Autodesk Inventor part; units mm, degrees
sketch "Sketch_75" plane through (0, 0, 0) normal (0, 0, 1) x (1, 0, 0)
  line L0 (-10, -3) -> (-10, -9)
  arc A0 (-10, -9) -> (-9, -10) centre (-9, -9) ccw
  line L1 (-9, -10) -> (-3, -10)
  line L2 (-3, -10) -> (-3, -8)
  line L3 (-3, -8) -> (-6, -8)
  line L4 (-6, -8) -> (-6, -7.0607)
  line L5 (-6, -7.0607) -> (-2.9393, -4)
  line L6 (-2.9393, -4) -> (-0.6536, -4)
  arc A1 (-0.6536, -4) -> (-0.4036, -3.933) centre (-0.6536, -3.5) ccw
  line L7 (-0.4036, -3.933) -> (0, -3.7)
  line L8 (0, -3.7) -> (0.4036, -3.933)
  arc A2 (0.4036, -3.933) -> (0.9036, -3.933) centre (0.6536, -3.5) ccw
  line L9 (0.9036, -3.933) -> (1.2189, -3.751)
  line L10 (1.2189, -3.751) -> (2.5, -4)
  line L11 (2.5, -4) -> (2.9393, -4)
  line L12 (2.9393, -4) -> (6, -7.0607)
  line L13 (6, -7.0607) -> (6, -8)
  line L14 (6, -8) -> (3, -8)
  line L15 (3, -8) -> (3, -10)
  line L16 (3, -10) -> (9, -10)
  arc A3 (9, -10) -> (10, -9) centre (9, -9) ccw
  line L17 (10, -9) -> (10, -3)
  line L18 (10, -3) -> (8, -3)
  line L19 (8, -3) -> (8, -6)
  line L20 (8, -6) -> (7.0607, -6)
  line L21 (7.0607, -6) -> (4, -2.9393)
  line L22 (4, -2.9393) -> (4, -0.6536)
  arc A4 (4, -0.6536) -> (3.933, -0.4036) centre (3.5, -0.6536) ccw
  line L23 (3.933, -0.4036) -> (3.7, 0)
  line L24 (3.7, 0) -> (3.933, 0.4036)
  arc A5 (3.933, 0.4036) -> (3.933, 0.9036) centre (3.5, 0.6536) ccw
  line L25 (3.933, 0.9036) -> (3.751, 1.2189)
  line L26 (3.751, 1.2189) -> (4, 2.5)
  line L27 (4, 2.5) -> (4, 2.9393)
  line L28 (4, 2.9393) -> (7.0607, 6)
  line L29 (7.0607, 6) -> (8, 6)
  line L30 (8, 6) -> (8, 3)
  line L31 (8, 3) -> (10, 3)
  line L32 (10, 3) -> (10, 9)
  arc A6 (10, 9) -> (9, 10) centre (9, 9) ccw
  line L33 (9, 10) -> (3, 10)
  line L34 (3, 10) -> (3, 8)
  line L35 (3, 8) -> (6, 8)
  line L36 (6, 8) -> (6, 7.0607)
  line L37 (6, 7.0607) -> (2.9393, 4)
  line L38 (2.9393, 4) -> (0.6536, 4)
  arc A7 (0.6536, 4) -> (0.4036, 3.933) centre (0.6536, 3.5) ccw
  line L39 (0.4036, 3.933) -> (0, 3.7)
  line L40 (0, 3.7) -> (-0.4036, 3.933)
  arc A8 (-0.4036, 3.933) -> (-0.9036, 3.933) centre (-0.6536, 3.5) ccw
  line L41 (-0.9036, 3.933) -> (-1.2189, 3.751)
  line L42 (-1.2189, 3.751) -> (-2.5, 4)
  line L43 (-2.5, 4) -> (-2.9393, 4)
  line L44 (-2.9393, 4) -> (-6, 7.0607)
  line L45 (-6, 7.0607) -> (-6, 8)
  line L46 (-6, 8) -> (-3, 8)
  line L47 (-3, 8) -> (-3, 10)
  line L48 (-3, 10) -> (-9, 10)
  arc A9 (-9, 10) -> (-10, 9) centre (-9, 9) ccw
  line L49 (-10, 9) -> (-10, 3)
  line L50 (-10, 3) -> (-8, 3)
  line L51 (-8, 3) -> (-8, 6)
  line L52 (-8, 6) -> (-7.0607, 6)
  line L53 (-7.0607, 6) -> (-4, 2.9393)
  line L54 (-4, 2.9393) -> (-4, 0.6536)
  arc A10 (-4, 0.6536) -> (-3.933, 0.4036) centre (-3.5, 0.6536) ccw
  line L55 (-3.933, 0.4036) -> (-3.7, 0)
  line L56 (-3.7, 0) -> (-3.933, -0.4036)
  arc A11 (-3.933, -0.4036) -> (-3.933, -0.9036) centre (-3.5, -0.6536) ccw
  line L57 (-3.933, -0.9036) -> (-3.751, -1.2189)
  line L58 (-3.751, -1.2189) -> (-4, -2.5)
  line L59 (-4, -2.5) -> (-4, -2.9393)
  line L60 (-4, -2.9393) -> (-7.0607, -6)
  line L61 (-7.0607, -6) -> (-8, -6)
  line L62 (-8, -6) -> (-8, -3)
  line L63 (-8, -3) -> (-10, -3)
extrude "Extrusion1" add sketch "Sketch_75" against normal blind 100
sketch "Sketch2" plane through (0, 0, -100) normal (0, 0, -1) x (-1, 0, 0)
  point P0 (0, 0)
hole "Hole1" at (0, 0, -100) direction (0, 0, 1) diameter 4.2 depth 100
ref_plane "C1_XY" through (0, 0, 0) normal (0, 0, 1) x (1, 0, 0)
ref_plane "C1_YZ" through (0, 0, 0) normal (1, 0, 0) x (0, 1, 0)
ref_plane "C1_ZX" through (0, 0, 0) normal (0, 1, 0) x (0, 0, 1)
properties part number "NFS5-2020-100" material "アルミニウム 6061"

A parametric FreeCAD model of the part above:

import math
import FreeCAD as App
import Part
import Sketcher
from FreeCAD import Vector
Q = App.Units.Quantity

doc = App.newDocument("Part")
body = doc.addObject("PartDesign::Body", "Body")

# Sketch on XY plane
sketch1 = doc.addObject("Sketcher::SketchObject", "Sketch")
body.addObject(sketch1)
sketch1.AttachmentSupport = (doc.XY_Plane, [""])
sketch1.MapMode = "FlatFace"
sketch1.addGeometry([
    Part.LineSegment(Vector(-8, -3, 0), Vector(-10, -3, 0)),  # 0
    Part.LineSegment(Vector(-10, -3, 0), Vector(-10, -9, 0)),  # 1
    Part.ArcOfCircle(Part.Circle(Vector(-9, -9, 0), Vector(0, 0, 1), 1), math.radians(180), math.radians(270)),  # 2
    Part.LineSegment(Vector(-9, -10, 0), Vector(-3, -10, 0)),  # 3
    Part.LineSegment(Vector(-3, -10, 0), Vector(-3, -8, 0)),  # 4
    Part.LineSegment(Vector(-3, -8, 0), Vector(-6, -8, 0)),  # 5
    Part.LineSegment(Vector(-6, -8, 0), Vector(-6, -7.06, 0)),  # 6
    Part.LineSegment(Vector(-6, -7.06, 0), Vector(-2.94, -4, 0)),  # 7
    Part.LineSegment(Vector(-2.94, -4, 0), Vector(-0.65, -4, 0)),  # 8
    Part.ArcOfCircle(Part.Circle(Vector(-0.65, -3.5, 0), Vector(0, 0, 1), 0.5), math.radians(-90), math.radians(-60)),  # 9
    Part.LineSegment(Vector(-0.4, -3.93, 0), Vector(0, -3.7, 0)),  # 10
    Part.LineSegment(Vector(0, -3.7, 0), Vector(0.4, -3.93, 0)),  # 11
    Part.ArcOfCircle(Part.Circle(Vector(0.65, -3.5, 0), Vector(0, 0, 1), 0.5), math.radians(-120), math.radians(-60)),  # 12
    Part.LineSegment(Vector(0.9, -3.93, 0), Vector(1.22, -3.75, 0)),  # 13
    Part.LineSegment(Vector(1.22, -3.75, 0), Vector(2.5, -4, 0)),  # 14
    Part.LineSegment(Vector(2.5, -4, 0), Vector(2.94, -4, 0)),  # 15
    Part.LineSegment(Vector(2.94, -4, 0), Vector(6, -7.06, 0)),  # 16
    Part.LineSegment(Vector(6, -7.06, 0), Vector(6, -8, 0)),  # 17
    Part.LineSegment(Vector(6, -8, 0), Vector(3, -8, 0)),  # 18
    Part.LineSegment(Vector(3, -8, 0), Vector(3, -10, 0)),  # 19
    Part.LineSegment(Vector(3, -10, 0), Vector(9, -10, 0)),  # 20
    Part.ArcOfCircle(Part.Circle(Vector(9, -9, 0), Vector(0, 0, 1), 1), math.radians(-90), math.radians(0)),  # 21
    Part.LineSegment(Vector(10, -9, 0), Vector(10, -3, 0)),  # 22
    Part.LineSegment(Vector(10, -3, 0), Vector(8, -3, 0)),  # 23
    Part.LineSegment(Vector(8, -3, 0), Vector(8, -6, 0)),  # 24
    Part.LineSegment(Vector(8, -6, 0), Vector(7.06, -6, 0)),  # 25
    Part.LineSegment(Vector(7.06, -6, 0), Vector(4, -2.94, 0)),  # 26
    Part.LineSegment(Vector(4, -2.94, 0), Vector(4, -0.65, 0)),  # 27
    Part.ArcOfCircle(Part.Circle(Vector(3.5, -0.65, 0), Vector(0, 0, 1), 0.5), math.radians(0), math.radians(30)),  # 28
    Part.LineSegment(Vector(3.93, -0.4, 0), Vector(3.7, 0, 0)),  # 29
    Part.LineSegment(Vector(3.7, 0, 0), Vector(3.93, 0.4, 0)),  # 30
    Part.ArcOfCircle(Part.Circle(Vector(3.5, 0.65, 0), Vector(0, 0, 1), 0.5), math.radians(-30), math.radians(30)),  # 31
    Part.LineSegment(Vector(3.93, 0.9, 0), Vector(3.75, 1.22, 0)),  # 32
    Part.LineSegment(Vector(3.75, 1.22, 0), Vector(4, 2.5, 0)),  # 33
    Part.LineSegment(Vector(4, 2.5, 0), Vector(4, 2.94, 0)),  # 34
    Part.LineSegment(Vector(4, 2.94, 0), Vector(7.06, 6, 0)),  # 35
    Part.LineSegment(Vector(7.06, 6, 0), Vector(8, 6, 0)),  # 36
    Part.LineSegment(Vector(8, 6, 0), Vector(8, 3, 0)),  # 37
    Part.LineSegment(Vector(8, 3, 0), Vector(10, 3, 0)),  # 38
    Part.LineSegment(Vector(10, 3, 0), Vector(10, 9, 0)),  # 39
    Part.ArcOfCircle(Part.Circle(Vector(9, 9, 0), Vector(0, 0, 1), 1), math.radians(0), math.radians(90)),  # 40
    Part.LineSegment(Vector(9, 10, 0), Vector(3, 10, 0)),  # 41
    Part.LineSegment(Vector(3, 10, 0), Vector(3, 8, 0)),  # 42
    Part.LineSegment(Vector(3, 8, 0), Vector(6, 8, 0)),  # 43
    Part.LineSegment(Vector(6, 8, 0), Vector(6, 7.06, 0)),  # 44
    Part.LineSegment(Vector(6, 7.06, 0), Vector(2.94, 4, 0)),  # 45
    Part.LineSegment(Vector(2.94, 4, 0), Vector(0.65, 4, 0)),  # 46
    Part.ArcOfCircle(Part.Circle(Vector(0.65, 3.5, 0), Vector(0, 0, 1), 0.5), math.radians(90), math.radians(120)),  # 47
    Part.LineSegment(Vector(0.4, 3.93, 0), Vector(0, 3.7, 0)),  # 48
    Part.LineSegment(Vector(0, 3.7, 0), Vector(-0.4, 3.93, 0)),  # 49
    Part.ArcOfCircle(Part.Circle(Vector(-0.65, 3.5, 0), Vector(0, 0, 1), 0.5), math.radians(60), math.radians(120)),  # 50
    Part.LineSegment(Vector(-0.9, 3.93, 0), Vector(-1.22, 3.75, 0)),  # 51
    Part.LineSegment(Vector(-1.22, 3.75, 0), Vector(-2.5, 4, 0)),  # 52
    Part.LineSegment(Vector(-2.5, 4, 0), Vector(-2.94, 4, 0)),  # 53
    Part.LineSegment(Vector(-2.94, 4, 0), Vector(-6, 7.06, 0)),  # 54
    Part.LineSegment(Vector(-6, 7.06, 0), Vector(-6, 8, 0)),  # 55
    Part.LineSegment(Vector(-6, 8, 0), Vector(-3, 8, 0)),  # 56
    Part.LineSegment(Vector(-3, 8, 0), Vector(-3, 10, 0)),  # 57
    Part.LineSegment(Vector(-3, 10, 0), Vector(-9, 10, 0)),  # 58
    Part.ArcOfCircle(Part.Circle(Vector(-9, 9, 0), Vector(0, 0, 1), 1), math.radians(90), math.radians(180)),  # 59
    Part.LineSegment(Vector(-10, 9, 0), Vector(-10, 3, 0)),  # 60
    Part.LineSegment(Vector(-10, 3, 0), Vector(-8, 3, 0)),  # 61
    Part.LineSegment(Vector(-8, 3, 0), Vector(-8, 6, 0)),  # 62
    Part.LineSegment(Vector(-8, 6, 0), Vector(-7.06, 6, 0)),  # 63
    Part.LineSegment(Vector(-7.06, 6, 0), Vector(-4, 2.94, 0)),  # 64
    Part.LineSegment(Vector(-4, 2.94, 0), Vector(-4, 0.65, 0)),  # 65
    Part.ArcOfCircle(Part.Circle(Vector(-3.5, 0.65, 0), Vector(0, 0, 1), 0.5), math.radians(180), math.radians(210)),  # 66
    Part.LineSegment(Vector(-3.93, 0.4, 0), Vector(-3.7, 0, 0)),  # 67
    Part.LineSegment(Vector(-3.7, 0, 0), Vector(-3.93, -0.4, 0)),  # 68
    Part.ArcOfCircle(Part.Circle(Vector(-3.5, -0.65, 0), Vector(0, 0, 1), 0.5), math.radians(150), math.radians(210)),  # 69
    Part.LineSegment(Vector(-3.93, -0.9, 0), Vector(-3.75, -1.22, 0)),  # 70
    Part.LineSegment(Vector(-3.75, -1.22, 0), Vector(-4, -2.5, 0)),  # 71
    Part.LineSegment(Vector(-4, -2.5, 0), Vector(-4, -2.94, 0)),  # 72
    Part.LineSegment(Vector(-4, -2.94, 0), Vector(-7.06, -6, 0)),  # 73
    Part.LineSegment(Vector(-7.06, -6, 0), Vector(-8, -6, 0)),  # 74
    Part.LineSegment(Vector(-8, -6, 0), Vector(-8, -3, 0)),  # 75
], False)
sketch1.addConstraint([
    Sketcher.Constraint("Coincident", 0, 2, 1, 1),
    Sketcher.Constraint("Tangent", 1, 2, 2, 1),
    Sketcher.Constraint("Tangent", 2, 2, 3, 1),
    Sketcher.Constraint("Coincident", 3, 2, 4, 1),
    Sketcher.Constraint("Coincident", 4, 2, 5, 1),
    Sketcher.Constraint("Coincident", 5, 2, 6, 1),
    Sketcher.Constraint("Coincident", 6, 2, 7, 1),
    Sketcher.Constraint("Coincident", 7, 2, 8, 1),
    Sketcher.Constraint("Tangent", 8, 2, 9, 1),
    Sketcher.Constraint("Tangent", 9, 2, 10, 1),
    Sketcher.Constraint("Coincident", 10, 2, 11, 1),
    Sketcher.Constraint("Tangent", 11, 2, 12, 1),
    Sketcher.Constraint("Tangent", 12, 2, 13, 1),
    Sketcher.Constraint("Coincident", 13, 2, 14, 1),
    Sketcher.Constraint("Coincident", 14, 2, 15, 1),
    Sketcher.Constraint("Coincident", 15, 2, 16, 1),
    Sketcher.Constraint("Coincident", 16, 2, 17, 1),
    Sketcher.Constraint("Coincident", 17, 2, 18, 1),
    Sketcher.Constraint("Coincident", 18, 2, 19, 1),
    Sketcher.Constraint("Coincident", 19, 2, 20, 1),
    Sketcher.Constraint("Tangent", 20, 2, 21, 1),
    Sketcher.Constraint("Tangent", 21, 2, 22, 1),
    Sketcher.Constraint("Coincident", 22, 2, 23, 1),
    Sketcher.Constraint("Coincident", 23, 2, 24, 1),
    Sketcher.Constraint("Coincident", 24, 2, 25, 1),
    Sketcher.Constraint("Coincident", 25, 2, 26, 1),
    Sketcher.Constraint("Coincident", 26, 2, 27, 1),
    Sketcher.Constraint("Tangent", 27, 2, 28, 1),
    Sketcher.Constraint("Tangent", 28, 2, 29, 1),
    Sketcher.Constraint("Coincident", 29, 2, 30, 1),
    Sketcher.Constraint("Tangent", 30, 2, 31, 1),
    Sketcher.Constraint("Tangent", 31, 2, 32, 1),
    Sketcher.Constraint("Coincident", 32, 2, 33, 1),
    Sketcher.Constraint("Coincident", 33, 2, 34, 1),
    Sketcher.Constraint("Coincident", 34, 2, 35, 1),
    Sketcher.Constraint("Coincident", 35, 2, 36, 1),
    Sketcher.Constraint("Coincident", 36, 2, 37, 1),
    Sketcher.Constraint("Coincident", 37, 2, 38, 1),
    Sketcher.Constraint("Coincident", 38, 2, 39, 1),
    Sketcher.Constraint("Tangent", 39, 2, 40, 1),
    Sketcher.Constraint("Tangent", 40, 2, 41, 1),
    Sketcher.Constraint("Coincident", 41, 2, 42, 1),
    Sketcher.Constraint("Coincident", 42, 2, 43, 1),
    Sketcher.Constraint("Coincident", 43, 2, 44, 1),
    Sketcher.Constraint("Coincident", 44, 2, 45, 1),
    Sketcher.Constraint("Coincident", 45, 2, 46, 1),
    Sketcher.Constraint("Tangent", 46, 2, 47, 1),
    Sketcher.Constraint("Tangent", 47, 2, 48, 1),
    Sketcher.Constraint("Coincident", 48, 2, 49, 1),
    Sketcher.Constraint("Tangent", 49, 2, 50, 1),
    Sketcher.Constraint("Tangent", 50, 2, 51, 1),
    Sketcher.Constraint("Coincident", 51, 2, 52, 1),
    Sketcher.Constraint("Coincident", 52, 2, 53, 1),
    Sketcher.Constraint("Coincident", 53, 2, 54, 1),
    Sketcher.Constraint("Coincident", 54, 2, 55, 1),
    Sketcher.Constraint("Coincident", 55, 2, 56, 1),
    Sketcher.Constraint("Coincident", 56, 2, 57, 1),
    Sketcher.Constraint("Coincident", 57, 2, 58, 1),
    Sketcher.Constraint("Tangent", 58, 2, 59, 1),
    Sketcher.Constraint("Tangent", 59, 2, 60, 1),
    Sketcher.Constraint("Coincident", 60, 2, 61, 1),
    Sketcher.Constraint("Coincident", 61, 2, 62, 1),
    Sketcher.Constraint("Coincident", 62, 2, 63, 1),
    Sketcher.Constraint("Coincident", 63, 2, 64, 1),
    Sketcher.Constraint("Coincident", 64, 2, 65, 1),
    Sketcher.Constraint("Tangent", 65, 2, 66, 1),
    Sketcher.Constraint("Tangent", 66, 2, 67, 1),
    Sketcher.Constraint("Coincident", 67, 2, 68, 1),
    Sketcher.Constraint("Tangent", 68, 2, 69, 1),
    Sketcher.Constraint("Tangent", 69, 2, 70, 1),
    Sketcher.Constraint("Coincident", 70, 2, 71, 1),
    Sketcher.Constraint("Coincident", 71, 2, 72, 1),
    Sketcher.Constraint("Coincident", 72, 2, 73, 1),
    Sketcher.Constraint("Coincident", 73, 2, 74, 1),
    Sketcher.Constraint("Coincident", 74, 2, 75, 1),
    Sketcher.Constraint("Coincident", 75, 2, 0, 1),
    Sketcher.Constraint("Horizontal", 0),
    Sketcher.Constraint("Vertical", 1),
    Sketcher.Constraint("Horizontal", 3),
    Sketcher.Constraint("Vertical", 4),
    Sketcher.Constraint("Horizontal", 5),
    Sketcher.Constraint("Vertical", 6),
    Sketcher.Constraint("Horizontal", 8),
    Sketcher.Constraint("Horizontal", 15),
    Sketcher.Constraint("Vertical", 17),
    Sketcher.Constraint("Horizontal", 18),
    Sketcher.Constraint("Vertical", 19),
    Sketcher.Constraint("Horizontal", 20),
    Sketcher.Constraint("Vertical", 22),
    Sketcher.Constraint("Horizontal", 23),
    Sketcher.Constraint("Vertical", 24),
    Sketcher.Constraint("Horizontal", 25),
    Sketcher.Constraint("Vertical", 27),
    Sketcher.Constraint("Vertical", 34),
    Sketcher.Constraint("Horizontal", 36),
    Sketcher.Constraint("Vertical", 37),
    Sketcher.Constraint("Horizontal", 38),
    Sketcher.Constraint("Vertical", 39),
    Sketcher.Constraint("Horizontal", 41),
    Sketcher.Constraint("Vertical", 42),
    Sketcher.Constraint("Horizontal", 43),
    Sketcher.Constraint("Vertical", 44),
    Sketcher.Constraint("Horizontal", 46),
    Sketcher.Constraint("Horizontal", 53),
    Sketcher.Constraint("Vertical", 55),
    Sketcher.Constraint("Horizontal", 56),
    Sketcher.Constraint("Vertical", 57),
    Sketcher.Constraint("Horizontal", 58),
    Sketcher.Constraint("Vertical", 60),
    Sketcher.Constraint("Horizontal", 61),
    Sketcher.Constraint("Vertical", 62),
    Sketcher.Constraint("Horizontal", 63),
    Sketcher.Constraint("Vertical", 65),
    Sketcher.Constraint("Vertical", 72),
    Sketcher.Constraint("Horizontal", 74),
    Sketcher.Constraint("Vertical", 75),
    Sketcher.Constraint("Equal", 9, 12),
    Sketcher.Constraint("Equal", 2, 21),
    Sketcher.Constraint("Equal", 12, 28),
    Sketcher.Constraint("Equal", 28, 31),
    Sketcher.Constraint("Equal", 21, 40),
    Sketcher.Constraint("Equal", 31, 47),
    Sketcher.Constraint("Equal", 47, 50),
    Sketcher.Constraint("Equal", 40, 59),
    Sketcher.Constraint("Equal", 50, 66),
    Sketcher.Constraint("Equal", 66, 69),
    Sketcher.Constraint("Symmetric", 2, 3, 40, 3, -1, 1),
    Sketcher.Constraint("Symmetric", 9, 3, 47, 3, -1, 1),
    Sketcher.Constraint("Symmetric", 12, 3, 50, 3, -1, 1),
    Sketcher.Constraint("Symmetric", 21, 3, 59, 3, -1, 1),
    Sketcher.Constraint("Symmetric", 28, 3, 66, 3, -1, 1),
    Sketcher.Constraint("Symmetric", 31, 3, 69, 3, -1, 1),
    Sketcher.Constraint("Symmetric", 4, 2, 42, 2, -1, 1),
    Sketcher.Constraint("Symmetric", 6, 2, 44, 2, -1, 1),
    Sketcher.Constraint("Symmetric", 10, 2, 48, 2, -1, 1),
    Sketcher.Constraint("Symmetric", 13, 2, 51, 2, -1, 1),
    Sketcher.Constraint("Symmetric", 14, 2, 52, 2, -1, 1),
    Sketcher.Constraint("Symmetric", 16, 2, 54, 2, -1, 1),
    Sketcher.Constraint("Symmetric", 18, 2, 56, 2, -1, 1),
    Sketcher.Constraint("Symmetric", 23, 2, 61, 2, -1, 1),
    Sketcher.Constraint("Symmetric", 25, 2, 63, 2, -1, 1),
    Sketcher.Constraint("Symmetric", 29, 2, 67, 2, -1, 1),
    Sketcher.Constraint("Symmetric", 32, 2, 70, 2, -1, 1),
    Sketcher.Constraint("Symmetric", 33, 2, 71, 2, -1, 1),
    Sketcher.Constraint("Symmetric", 35, 2, 73, 2, -1, 1),
    Sketcher.Constraint("Symmetric", 37, 2, 75, 2, -1, 1),
    Sketcher.Constraint("Symmetric", 9, 3, 12, 3, -2),
    Sketcher.Constraint("Symmetric", 2, 3, 21, 3, -2),
    Sketcher.Constraint("Symmetric", 31, 3, 66, 3, -2),
    Sketcher.Constraint("Symmetric", 7, 2, 15, 2, -2),
    Sketcher.Constraint("Symmetric", 6, 2, 16, 2, -2),
    Sketcher.Constraint("Symmetric", 4, 2, 18, 2, -2),
    Sketcher.Constraint("Symmetric", 37, 2, 61, 2, -2),
    Sketcher.Constraint("Symmetric", 35, 2, 63, 2, -2),
    Sketcher.Constraint("Symmetric", 34, 2, 64, 2, -2),
    Sketcher.Constraint("PointOnObject", 10, 2, -2),
    Sketcher.Constraint("PointOnObject", 29, 2, -1),
    Sketcher.Constraint("Parallel", 10, 13),
    Sketcher.Constraint("Perpendicular", 7, 16),
    Sketcher.Constraint("Parallel", 16, 26),
    Sketcher.Constraint("Perpendicular", 13, 29),
    Sketcher.Constraint("Parallel", 29, 32),
    Sketcher.Constraint("Perpendicular", 14, 33),
    Sketcher.Constraint("Perpendicular", 26, 35),
    Sketcher.Constraint("Parallel", 35, 45),
    Sketcher.Constraint("Perpendicular", 45, 54),
    Sketcher.Constraint("Perpendicular", 64, 73),
    Sketcher.Constraint("Equal", 58, 1),
    Sketcher.Constraint("Equal", 61, 4),
    Sketcher.Constraint("Equal", 74, 6),
    Sketcher.Constraint("Equal", 56, 24),
    Sketcher.Constraint("Equal", 46, 27),
    Sketcher.Constraint("Equal", 53, 34),
    Sketcher.Constraint("Equal", 16, 26),
    Sketcher.Constraint("Equal", 11, 29),
    Sketcher.Constraint("Radius", 2, 1.0),
    Sketcher.Constraint("Radius", 9, 0.5),
    Sketcher.Constraint("DistanceX", 0, 2, 0, 1, 2.0),
    Sketcher.Constraint("DistanceX", 3, 1, 3, 2, 6.0),
    Sketcher.Constraint("DistanceX", 5, 2, 5, 1, 3.0),
    Sketcher.Constraint("Angle", 14, Q("-10.999 deg")),
    Sketcher.Constraint("DistanceX", 2, 3, -1, 1, 9.0),
    Sketcher.Constraint("DistanceY", 7, 2, -1, 1, 4.0),
    Sketcher.Constraint("DistanceY", 10, 2, -1, 1, 3.7),
    Sketcher.Constraint("DistanceX", -1, 1, 14, 2, 2.5),
    Sketcher.Constraint("Distance", 10, 0.466),
    Sketcher.Constraint("DistanceX", 8, 1, 8, 2, 2.2857),
])
pad1 = doc.addObject("PartDesign::Pad", "Pad")
body.addObject(pad1)
pad1.Profile = sketch1
pad1.Length = 100
pad1.Reversed = True

# Sketch on XY plane
sketch2 = doc.addObject("Sketcher::SketchObject", "Sketch001")
body.addObject(sketch2)
sketch2.AttachmentSupport = (doc.XY_Plane, [""])
sketch2.MapMode = "FlatFace"
sketch2.AttachmentOffset = App.Placement(Vector(0, 0, -100), App.Rotation())
sketch2.addGeometry(Part.Circle(Vector(0, 0, 0), Vector(0, 0, 1), 2.1), False)
sketch2.addConstraint([
    Sketcher.Constraint("Coincident", 0, 3, -1, 1),
    Sketcher.Constraint("Diameter", 0, 4.2),
])
doc.recompute()
hole = doc.addObject("PartDesign::Hole", "Hole")
body.addObject(hole)
hole.Profile = sketch2
hole.ThreadType = "None"
hole.Diameter = 4.2
hole.DepthType = "Dimension"
hole.Depth = 100
hole.DrillPoint = "Flat"
hole.Reversed = True

doc.recompute()
